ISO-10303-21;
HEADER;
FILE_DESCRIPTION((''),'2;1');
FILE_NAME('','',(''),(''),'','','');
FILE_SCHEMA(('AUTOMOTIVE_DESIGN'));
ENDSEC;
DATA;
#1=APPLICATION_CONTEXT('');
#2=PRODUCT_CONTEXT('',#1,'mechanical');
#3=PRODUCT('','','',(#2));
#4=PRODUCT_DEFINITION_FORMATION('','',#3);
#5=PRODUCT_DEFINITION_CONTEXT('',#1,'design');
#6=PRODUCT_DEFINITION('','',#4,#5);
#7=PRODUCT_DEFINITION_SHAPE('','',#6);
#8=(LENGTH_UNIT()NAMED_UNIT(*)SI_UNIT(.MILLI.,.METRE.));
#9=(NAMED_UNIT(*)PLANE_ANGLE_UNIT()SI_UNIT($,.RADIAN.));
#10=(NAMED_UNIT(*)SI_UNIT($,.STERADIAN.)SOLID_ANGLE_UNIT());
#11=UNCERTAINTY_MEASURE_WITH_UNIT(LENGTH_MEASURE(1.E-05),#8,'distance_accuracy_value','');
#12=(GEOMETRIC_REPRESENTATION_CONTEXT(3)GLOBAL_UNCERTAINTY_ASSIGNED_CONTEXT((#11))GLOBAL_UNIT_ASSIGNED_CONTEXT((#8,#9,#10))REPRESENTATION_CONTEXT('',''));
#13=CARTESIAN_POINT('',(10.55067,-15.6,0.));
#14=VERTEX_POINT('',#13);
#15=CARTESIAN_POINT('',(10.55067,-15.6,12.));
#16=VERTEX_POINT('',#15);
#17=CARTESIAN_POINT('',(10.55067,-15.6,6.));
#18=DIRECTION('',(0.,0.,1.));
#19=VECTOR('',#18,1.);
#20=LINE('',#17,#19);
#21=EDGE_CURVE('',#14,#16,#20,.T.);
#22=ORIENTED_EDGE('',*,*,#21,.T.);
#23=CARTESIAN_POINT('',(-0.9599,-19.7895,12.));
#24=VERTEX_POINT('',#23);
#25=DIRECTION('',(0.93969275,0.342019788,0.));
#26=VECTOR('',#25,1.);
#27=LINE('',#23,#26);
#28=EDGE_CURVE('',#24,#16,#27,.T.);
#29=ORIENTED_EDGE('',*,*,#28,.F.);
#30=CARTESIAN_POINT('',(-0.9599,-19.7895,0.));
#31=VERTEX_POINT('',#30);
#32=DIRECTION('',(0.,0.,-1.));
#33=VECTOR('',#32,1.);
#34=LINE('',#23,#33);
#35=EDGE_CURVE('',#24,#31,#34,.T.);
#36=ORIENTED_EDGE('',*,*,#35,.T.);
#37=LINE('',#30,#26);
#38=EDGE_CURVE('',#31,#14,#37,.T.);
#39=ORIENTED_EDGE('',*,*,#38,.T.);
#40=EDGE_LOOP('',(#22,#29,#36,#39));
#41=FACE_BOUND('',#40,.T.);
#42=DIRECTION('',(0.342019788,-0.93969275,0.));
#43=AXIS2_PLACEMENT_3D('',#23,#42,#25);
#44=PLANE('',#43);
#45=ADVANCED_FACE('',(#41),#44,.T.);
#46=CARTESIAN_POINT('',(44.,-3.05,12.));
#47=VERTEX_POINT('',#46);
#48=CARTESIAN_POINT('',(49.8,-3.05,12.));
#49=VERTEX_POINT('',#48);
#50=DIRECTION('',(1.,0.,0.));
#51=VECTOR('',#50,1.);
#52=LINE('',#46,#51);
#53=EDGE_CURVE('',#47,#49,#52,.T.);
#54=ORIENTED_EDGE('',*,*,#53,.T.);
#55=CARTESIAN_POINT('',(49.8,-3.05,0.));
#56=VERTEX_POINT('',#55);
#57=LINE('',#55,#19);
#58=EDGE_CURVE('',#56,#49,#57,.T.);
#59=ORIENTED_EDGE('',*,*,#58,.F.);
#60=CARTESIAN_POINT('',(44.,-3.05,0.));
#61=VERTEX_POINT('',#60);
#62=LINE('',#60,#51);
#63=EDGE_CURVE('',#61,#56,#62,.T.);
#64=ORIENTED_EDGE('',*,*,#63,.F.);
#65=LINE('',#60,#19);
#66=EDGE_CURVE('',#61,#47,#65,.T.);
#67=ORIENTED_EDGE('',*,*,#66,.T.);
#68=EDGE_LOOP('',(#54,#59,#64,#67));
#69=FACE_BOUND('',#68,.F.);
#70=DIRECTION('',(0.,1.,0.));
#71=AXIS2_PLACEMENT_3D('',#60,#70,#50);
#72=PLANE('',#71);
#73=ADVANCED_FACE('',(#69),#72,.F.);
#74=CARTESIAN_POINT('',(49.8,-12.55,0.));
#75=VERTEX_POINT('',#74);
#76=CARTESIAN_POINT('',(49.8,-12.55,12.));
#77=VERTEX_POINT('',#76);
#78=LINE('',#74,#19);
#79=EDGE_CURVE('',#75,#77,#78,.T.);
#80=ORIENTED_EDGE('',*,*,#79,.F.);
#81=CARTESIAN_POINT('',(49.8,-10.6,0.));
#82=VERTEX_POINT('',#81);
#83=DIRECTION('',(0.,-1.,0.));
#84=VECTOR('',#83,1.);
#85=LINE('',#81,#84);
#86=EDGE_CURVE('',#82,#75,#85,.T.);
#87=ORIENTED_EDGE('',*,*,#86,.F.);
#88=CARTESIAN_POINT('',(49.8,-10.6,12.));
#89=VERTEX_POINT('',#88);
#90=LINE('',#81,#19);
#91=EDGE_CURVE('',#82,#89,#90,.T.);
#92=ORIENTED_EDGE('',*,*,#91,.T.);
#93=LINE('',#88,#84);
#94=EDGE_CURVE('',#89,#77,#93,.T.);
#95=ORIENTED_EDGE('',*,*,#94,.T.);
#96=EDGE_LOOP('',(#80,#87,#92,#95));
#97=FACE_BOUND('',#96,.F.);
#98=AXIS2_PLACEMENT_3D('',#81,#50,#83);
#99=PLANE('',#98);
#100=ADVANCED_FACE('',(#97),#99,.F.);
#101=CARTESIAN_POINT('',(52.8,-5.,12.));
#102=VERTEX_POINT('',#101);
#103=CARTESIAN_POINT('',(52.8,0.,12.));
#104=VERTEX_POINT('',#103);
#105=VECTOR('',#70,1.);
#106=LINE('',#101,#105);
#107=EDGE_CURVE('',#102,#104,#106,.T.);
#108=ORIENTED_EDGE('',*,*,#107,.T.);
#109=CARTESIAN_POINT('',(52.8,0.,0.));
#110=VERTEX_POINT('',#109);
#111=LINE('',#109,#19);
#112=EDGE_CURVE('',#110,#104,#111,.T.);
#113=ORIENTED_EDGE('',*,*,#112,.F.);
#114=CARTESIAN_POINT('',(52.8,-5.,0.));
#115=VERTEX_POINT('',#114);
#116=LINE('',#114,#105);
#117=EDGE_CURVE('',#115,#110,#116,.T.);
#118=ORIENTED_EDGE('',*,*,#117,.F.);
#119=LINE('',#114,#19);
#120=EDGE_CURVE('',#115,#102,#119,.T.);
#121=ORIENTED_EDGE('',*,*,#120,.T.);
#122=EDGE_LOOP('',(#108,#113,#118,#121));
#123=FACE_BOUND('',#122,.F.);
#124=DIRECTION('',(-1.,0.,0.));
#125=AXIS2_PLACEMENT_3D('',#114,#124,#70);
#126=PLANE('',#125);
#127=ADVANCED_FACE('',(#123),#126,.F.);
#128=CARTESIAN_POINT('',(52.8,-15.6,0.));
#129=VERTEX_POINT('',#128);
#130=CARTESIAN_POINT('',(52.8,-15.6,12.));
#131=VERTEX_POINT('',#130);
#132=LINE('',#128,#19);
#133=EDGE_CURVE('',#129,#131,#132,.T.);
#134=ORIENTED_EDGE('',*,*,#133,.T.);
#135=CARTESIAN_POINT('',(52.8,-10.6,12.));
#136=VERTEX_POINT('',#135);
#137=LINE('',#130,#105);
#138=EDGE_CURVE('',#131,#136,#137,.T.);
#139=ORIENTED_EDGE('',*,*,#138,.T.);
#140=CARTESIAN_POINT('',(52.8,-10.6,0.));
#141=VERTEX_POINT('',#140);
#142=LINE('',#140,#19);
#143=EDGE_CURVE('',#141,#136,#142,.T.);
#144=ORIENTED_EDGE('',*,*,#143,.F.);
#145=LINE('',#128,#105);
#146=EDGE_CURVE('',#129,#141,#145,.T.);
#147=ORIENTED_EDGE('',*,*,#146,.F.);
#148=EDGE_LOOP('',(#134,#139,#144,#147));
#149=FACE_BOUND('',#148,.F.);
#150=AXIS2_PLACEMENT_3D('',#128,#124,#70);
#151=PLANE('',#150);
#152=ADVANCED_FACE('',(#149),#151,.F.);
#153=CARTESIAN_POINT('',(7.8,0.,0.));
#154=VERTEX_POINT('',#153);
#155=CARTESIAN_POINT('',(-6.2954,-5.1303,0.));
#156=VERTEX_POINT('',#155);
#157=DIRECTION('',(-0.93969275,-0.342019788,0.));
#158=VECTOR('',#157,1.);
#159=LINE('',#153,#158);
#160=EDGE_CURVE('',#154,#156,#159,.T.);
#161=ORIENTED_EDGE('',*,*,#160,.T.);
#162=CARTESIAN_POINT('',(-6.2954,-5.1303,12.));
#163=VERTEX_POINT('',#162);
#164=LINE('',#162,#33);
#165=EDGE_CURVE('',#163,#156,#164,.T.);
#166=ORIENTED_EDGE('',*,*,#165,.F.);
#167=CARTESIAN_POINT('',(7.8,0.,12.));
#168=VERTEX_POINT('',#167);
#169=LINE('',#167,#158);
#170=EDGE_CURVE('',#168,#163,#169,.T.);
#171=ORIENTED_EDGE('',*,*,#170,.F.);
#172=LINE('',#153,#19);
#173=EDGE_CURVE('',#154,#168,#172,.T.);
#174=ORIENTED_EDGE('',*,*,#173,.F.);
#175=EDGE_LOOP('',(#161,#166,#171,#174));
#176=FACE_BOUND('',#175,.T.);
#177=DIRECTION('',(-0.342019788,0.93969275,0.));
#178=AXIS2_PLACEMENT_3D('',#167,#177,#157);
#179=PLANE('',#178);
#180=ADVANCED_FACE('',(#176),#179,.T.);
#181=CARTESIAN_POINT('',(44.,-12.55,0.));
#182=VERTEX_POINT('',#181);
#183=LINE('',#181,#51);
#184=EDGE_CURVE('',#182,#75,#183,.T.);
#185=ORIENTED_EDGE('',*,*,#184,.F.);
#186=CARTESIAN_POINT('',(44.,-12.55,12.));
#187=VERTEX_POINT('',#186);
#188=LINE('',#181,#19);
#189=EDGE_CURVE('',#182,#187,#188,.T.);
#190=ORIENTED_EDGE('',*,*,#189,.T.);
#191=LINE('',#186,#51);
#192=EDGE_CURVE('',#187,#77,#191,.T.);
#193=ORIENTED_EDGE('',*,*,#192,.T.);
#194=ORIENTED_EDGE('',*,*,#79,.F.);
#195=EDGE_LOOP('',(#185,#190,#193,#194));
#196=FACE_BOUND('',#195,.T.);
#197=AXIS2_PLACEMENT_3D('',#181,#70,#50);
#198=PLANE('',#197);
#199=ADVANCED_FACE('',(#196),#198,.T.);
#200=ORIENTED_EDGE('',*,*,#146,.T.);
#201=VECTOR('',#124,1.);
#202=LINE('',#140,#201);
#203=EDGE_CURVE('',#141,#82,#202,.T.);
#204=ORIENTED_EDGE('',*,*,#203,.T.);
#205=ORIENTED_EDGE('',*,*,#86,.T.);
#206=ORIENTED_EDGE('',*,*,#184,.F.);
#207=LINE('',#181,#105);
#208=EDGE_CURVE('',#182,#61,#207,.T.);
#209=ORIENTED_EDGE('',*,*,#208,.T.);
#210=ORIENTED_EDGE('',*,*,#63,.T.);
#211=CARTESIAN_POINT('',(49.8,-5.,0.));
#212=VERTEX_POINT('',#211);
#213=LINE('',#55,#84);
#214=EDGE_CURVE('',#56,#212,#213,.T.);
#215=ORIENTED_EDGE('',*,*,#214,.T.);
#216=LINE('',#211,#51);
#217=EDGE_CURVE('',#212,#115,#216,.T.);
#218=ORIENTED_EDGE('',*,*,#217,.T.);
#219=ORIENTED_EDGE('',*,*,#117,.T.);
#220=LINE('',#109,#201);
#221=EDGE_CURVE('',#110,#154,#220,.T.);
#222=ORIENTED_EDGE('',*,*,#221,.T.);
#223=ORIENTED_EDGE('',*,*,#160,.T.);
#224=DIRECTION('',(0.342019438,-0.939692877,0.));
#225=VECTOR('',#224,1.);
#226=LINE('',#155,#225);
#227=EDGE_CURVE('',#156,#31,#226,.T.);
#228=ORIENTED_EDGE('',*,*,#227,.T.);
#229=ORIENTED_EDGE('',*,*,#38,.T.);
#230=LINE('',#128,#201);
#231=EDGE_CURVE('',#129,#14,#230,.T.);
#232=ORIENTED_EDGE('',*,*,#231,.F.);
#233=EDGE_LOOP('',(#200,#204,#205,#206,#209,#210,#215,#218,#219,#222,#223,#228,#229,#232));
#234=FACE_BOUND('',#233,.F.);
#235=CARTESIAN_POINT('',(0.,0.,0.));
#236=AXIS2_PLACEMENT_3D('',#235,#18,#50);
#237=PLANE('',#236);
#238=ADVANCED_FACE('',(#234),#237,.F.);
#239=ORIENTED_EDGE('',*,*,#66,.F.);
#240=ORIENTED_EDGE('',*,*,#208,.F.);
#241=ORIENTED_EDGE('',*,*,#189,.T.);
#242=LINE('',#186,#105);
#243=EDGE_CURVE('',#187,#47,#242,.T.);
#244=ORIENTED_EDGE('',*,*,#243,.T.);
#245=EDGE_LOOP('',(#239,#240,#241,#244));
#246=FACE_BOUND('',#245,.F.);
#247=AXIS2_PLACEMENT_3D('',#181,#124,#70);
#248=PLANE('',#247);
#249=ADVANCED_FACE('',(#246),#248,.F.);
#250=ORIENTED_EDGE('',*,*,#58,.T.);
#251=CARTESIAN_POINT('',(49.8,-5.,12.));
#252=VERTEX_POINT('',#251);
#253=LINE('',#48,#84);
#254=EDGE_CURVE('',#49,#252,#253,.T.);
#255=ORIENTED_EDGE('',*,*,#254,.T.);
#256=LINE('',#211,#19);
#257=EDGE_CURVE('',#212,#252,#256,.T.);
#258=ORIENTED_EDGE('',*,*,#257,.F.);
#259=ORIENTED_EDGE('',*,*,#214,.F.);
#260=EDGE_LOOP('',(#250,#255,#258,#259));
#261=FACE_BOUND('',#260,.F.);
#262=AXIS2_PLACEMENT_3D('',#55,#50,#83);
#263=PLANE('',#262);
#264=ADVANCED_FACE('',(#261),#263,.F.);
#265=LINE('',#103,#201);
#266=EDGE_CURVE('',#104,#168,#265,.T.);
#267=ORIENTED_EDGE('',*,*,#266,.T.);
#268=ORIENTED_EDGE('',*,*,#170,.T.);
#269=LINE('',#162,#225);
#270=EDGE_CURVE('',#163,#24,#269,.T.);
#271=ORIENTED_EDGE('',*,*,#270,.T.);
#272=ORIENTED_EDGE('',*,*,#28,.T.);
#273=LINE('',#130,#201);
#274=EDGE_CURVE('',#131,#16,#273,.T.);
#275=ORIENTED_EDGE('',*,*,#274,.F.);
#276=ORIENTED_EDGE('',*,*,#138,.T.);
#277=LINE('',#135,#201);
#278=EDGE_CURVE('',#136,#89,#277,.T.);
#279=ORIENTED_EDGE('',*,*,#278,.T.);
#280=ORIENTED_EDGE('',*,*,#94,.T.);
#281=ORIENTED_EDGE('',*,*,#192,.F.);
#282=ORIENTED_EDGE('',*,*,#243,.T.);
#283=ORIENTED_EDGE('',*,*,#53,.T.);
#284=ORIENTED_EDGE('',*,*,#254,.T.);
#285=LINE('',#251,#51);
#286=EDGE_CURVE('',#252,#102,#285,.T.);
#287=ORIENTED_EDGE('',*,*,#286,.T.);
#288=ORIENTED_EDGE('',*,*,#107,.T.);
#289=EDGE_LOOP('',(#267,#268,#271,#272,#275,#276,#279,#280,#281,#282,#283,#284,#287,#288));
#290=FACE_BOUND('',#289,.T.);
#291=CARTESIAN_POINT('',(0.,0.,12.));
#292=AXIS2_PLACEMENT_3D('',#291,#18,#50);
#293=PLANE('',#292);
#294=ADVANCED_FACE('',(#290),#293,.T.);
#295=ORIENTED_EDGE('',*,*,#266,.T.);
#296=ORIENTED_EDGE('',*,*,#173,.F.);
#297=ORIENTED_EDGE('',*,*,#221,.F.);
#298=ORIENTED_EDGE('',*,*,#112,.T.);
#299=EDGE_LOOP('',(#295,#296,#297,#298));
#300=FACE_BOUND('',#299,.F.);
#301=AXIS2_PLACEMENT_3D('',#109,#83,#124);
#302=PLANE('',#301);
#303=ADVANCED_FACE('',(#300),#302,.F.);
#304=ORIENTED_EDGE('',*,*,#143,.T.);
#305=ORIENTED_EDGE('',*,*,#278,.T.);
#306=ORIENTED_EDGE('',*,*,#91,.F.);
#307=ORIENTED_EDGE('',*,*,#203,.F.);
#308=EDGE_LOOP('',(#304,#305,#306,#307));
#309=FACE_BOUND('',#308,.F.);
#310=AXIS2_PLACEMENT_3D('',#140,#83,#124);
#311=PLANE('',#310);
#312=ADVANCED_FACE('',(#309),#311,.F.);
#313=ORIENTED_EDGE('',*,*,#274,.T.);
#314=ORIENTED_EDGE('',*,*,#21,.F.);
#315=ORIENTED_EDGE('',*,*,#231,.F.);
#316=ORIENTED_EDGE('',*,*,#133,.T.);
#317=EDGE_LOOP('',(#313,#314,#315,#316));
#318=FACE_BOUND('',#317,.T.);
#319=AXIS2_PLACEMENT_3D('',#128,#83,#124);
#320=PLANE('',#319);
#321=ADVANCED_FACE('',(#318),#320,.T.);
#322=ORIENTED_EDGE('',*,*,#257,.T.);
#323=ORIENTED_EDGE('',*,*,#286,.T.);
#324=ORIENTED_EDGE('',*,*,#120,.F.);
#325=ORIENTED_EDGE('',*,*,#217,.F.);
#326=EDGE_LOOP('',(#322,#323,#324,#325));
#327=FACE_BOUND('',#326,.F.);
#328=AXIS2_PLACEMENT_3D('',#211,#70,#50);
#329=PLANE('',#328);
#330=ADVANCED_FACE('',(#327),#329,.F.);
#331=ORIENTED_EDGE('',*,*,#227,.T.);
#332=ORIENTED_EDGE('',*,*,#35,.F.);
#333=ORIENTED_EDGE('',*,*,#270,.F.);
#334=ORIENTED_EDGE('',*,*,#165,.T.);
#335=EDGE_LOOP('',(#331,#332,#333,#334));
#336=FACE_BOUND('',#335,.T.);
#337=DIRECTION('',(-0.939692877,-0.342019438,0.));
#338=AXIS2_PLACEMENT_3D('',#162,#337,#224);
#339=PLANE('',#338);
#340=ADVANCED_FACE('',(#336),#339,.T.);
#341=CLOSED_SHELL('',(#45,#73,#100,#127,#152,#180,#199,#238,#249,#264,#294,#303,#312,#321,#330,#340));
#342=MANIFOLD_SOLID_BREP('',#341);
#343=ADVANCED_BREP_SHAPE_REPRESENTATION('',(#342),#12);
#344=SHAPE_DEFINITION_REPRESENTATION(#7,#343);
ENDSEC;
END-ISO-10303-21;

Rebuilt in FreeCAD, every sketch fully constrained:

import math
import FreeCAD as App
import Part
import Sketcher

V = App.Vector
Q = App.Units.Quantity


def add_polygon(sketch, points):
    """Adds a closed chain of lines whose ends are joined by coincident constraints."""
    first, n = sketch.GeometryCount, len(points)
    for a, b in zip(points, points[1:] + points[:1]):
        sketch.addGeometry(Part.LineSegment(App.Vector(*a, 0), App.Vector(*b, 0)), False)
    for i in range(n):
        sketch.addConstraint(Sketcher.Constraint("Coincident", first + i, 2, first + (i + 1) % n, 1))

doc = App.newDocument("Part")
body = doc.addObject("PartDesign::Body", "Body")

# Sketch on XY plane
sketch1 = body.newObject("Sketcher::SketchObject", "Sketch")
sketch1.AttachmentSupport = (doc.getObject("XY_Plane"), [""])
sketch1.MapMode = "FlatFace"
sketch1.addGeometry([
    Part.LineSegment(V(7.8, -15.6, 0), V(52.8, -15.6, 0)),  # 0
    Part.LineSegment(V(52.8, -15.6, 0), V(52.8, -10.6, 0)),  # 1
    Part.LineSegment(V(52.8, -10.6, 0), V(49.8, -10.6, 0)),  # 2
    Part.LineSegment(V(49.8, -10.6, 0), V(49.8, -12.55, 0)),  # 3
    Part.LineSegment(V(49.8, -12.55, 0), V(44, -12.55, 0)),  # 4
    Part.LineSegment(V(44, -12.55, 0), V(44, -3.05, 0)),  # 5
    Part.LineSegment(V(44, -3.05, 0), V(49.8, -3.05, 0)),  # 6
    Part.LineSegment(V(49.8, -3.05, 0), V(49.8, -5, 0)),  # 7
    Part.LineSegment(V(49.8, -5, 0), V(52.8, -5, 0)),  # 8
    Part.LineSegment(V(52.8, -5, 0), V(52.8, 0, 0)),  # 9
    Part.LineSegment(V(52.8, 0, 0), V(7.8, 0, 0)),  # 10
    Part.ArcOfCircle(Part.Circle(V(7.8, -7.8, 0), V(0, 0, 1), 7.8), math.radians(90), math.radians(270)),  # 11
], False)
sketch1.addConstraint([
    Sketcher.Constraint("Coincident", 0, 2, 1, 1),
    Sketcher.Constraint("Coincident", 1, 2, 2, 1),
    Sketcher.Constraint("Coincident", 2, 2, 3, 1),
    Sketcher.Constraint("Coincident", 3, 2, 4, 1),
    Sketcher.Constraint("Coincident", 4, 2, 5, 1),
    Sketcher.Constraint("Coincident", 5, 2, 6, 1),
    Sketcher.Constraint("Coincident", 6, 2, 7, 1),
    Sketcher.Constraint("Coincident", 7, 2, 8, 1),
    Sketcher.Constraint("Coincident", 8, 2, 9, 1),
    Sketcher.Constraint("Coincident", 9, 2, 10, 1),
    Sketcher.Constraint("Tangent", 10, 2, 11, 1),
    Sketcher.Constraint("Tangent", 11, 2, 0, 1),
    Sketcher.Constraint("Horizontal", 0),
    Sketcher.Constraint("Vertical", 1),
    Sketcher.Constraint("Horizontal", 2),
    Sketcher.Constraint("Vertical", 3),
    Sketcher.Constraint("Horizontal", 4),
    Sketcher.Constraint("Vertical", 5),
    Sketcher.Constraint("Horizontal", 6),
    Sketcher.Constraint("Vertical", 7),
    Sketcher.Constraint("Horizontal", 8),
    Sketcher.Constraint("Vertical", 9),
    Sketcher.Constraint("Horizontal", 10),
    Sketcher.Constraint("PointOnObject", 9, 2, -1),
    Sketcher.Constraint("Vertical", 3, 2, 6, 2),
    Sketcher.Constraint("Vertical", 1, 2, 8, 2),
    Sketcher.Constraint("Equal", 3, 7),
    Sketcher.Constraint("Equal", 1, 9),
    Sketcher.Constraint("Radius", 11, 7.8),
    Sketcher.Constraint("DistanceX", 0, 1, 0, 2, 45.0),
    Sketcher.Constraint("DistanceX", 2, 2, 2, 1, 3.0),
    Sketcher.Constraint("DistanceX", 4, 2, 4, 1, 5.8),
    Sketcher.Constraint("DistanceY", 5, 1, 5, 2, 9.5),
    Sketcher.Constraint("DistanceX", -1, 1, 4, 2, 44.0),
    Sketcher.Constraint("DistanceY", 2, 2, 7, 2, 5.6),
])
pad1 = body.newObject("PartDesign::Pad", "Pad")
pad1.Profile = sketch1
pad1.Length = 12

# Sketch on XY plane
sketch2 = body.newObject("Sketcher::SketchObject", "Sketch001")
sketch2.AttachmentSupport = (doc.getObject("XY_Plane"), [""])
sketch2.MapMode = "FlatFace"
sketch2.AttachmentOffset = App.Placement(V(0, 0, 12), App.Rotation())
add_polygon(sketch2, [(7.8, -15.6), (7.8, 0), (0, 0), (0, -15.6)])  # lines 0-3
sketch2.addConstraint([
    Sketcher.Constraint("Vertical", 0),
    Sketcher.Constraint("Horizontal", 1),
    Sketcher.Constraint("Vertical", 2),
    Sketcher.Constraint("Horizontal", 3),
    Sketcher.Constraint("Coincident", 1, 2, -1, 1),
    Sketcher.Constraint("DistanceX", 1, 2, 1, 1, 7.8),
    Sketcher.Constraint("DistanceY", 0, 1, 0, 2, 15.6),
])
pocket1 = body.newObject("PartDesign::Pocket", "Pocket")
pocket1.Profile = sketch2
pocket1.Type = "ThroughAll"

# Sketch on XY plane
sketch3 = body.newObject("Sketcher::SketchObject", "Sketch002")
sketch3.AttachmentSupport = (doc.getObject("XY_Plane"), [""])
sketch3.MapMode = "FlatFace"
sketch3.AttachmentOffset = App.Placement(V(0, 0, 12), App.Rotation())
add_polygon(sketch3, [(13.1355, -14.6592), (7.8, 0), (-6.2954, -5.1303), (-0.9599, -19.7895)])  # lines 0-3
sketch3.addConstraint([
    Sketcher.Constraint("PointOnObject", 0, 2, -1),
    Sketcher.Constraint("Perpendicular", 0, 1),
    Sketcher.Constraint("Perpendicular", 1, 2),
    Sketcher.Constraint("Perpendicular", 2, 3),
    Sketcher.Constraint("Angle", 3, Q("20 deg")),
    Sketcher.Constraint("Distance", 1, 15.0),
    Sketcher.Constraint("Distance", 0, 15.6),
    Sketcher.Constraint("DistanceX", -1, 1, 0, 2, 7.8),
])
pad2 = body.newObject("PartDesign::Pad", "Pad001")
pad2.Profile = sketch3
pad2.Length = 12
pad2.Reversed = True

doc.recompute()
